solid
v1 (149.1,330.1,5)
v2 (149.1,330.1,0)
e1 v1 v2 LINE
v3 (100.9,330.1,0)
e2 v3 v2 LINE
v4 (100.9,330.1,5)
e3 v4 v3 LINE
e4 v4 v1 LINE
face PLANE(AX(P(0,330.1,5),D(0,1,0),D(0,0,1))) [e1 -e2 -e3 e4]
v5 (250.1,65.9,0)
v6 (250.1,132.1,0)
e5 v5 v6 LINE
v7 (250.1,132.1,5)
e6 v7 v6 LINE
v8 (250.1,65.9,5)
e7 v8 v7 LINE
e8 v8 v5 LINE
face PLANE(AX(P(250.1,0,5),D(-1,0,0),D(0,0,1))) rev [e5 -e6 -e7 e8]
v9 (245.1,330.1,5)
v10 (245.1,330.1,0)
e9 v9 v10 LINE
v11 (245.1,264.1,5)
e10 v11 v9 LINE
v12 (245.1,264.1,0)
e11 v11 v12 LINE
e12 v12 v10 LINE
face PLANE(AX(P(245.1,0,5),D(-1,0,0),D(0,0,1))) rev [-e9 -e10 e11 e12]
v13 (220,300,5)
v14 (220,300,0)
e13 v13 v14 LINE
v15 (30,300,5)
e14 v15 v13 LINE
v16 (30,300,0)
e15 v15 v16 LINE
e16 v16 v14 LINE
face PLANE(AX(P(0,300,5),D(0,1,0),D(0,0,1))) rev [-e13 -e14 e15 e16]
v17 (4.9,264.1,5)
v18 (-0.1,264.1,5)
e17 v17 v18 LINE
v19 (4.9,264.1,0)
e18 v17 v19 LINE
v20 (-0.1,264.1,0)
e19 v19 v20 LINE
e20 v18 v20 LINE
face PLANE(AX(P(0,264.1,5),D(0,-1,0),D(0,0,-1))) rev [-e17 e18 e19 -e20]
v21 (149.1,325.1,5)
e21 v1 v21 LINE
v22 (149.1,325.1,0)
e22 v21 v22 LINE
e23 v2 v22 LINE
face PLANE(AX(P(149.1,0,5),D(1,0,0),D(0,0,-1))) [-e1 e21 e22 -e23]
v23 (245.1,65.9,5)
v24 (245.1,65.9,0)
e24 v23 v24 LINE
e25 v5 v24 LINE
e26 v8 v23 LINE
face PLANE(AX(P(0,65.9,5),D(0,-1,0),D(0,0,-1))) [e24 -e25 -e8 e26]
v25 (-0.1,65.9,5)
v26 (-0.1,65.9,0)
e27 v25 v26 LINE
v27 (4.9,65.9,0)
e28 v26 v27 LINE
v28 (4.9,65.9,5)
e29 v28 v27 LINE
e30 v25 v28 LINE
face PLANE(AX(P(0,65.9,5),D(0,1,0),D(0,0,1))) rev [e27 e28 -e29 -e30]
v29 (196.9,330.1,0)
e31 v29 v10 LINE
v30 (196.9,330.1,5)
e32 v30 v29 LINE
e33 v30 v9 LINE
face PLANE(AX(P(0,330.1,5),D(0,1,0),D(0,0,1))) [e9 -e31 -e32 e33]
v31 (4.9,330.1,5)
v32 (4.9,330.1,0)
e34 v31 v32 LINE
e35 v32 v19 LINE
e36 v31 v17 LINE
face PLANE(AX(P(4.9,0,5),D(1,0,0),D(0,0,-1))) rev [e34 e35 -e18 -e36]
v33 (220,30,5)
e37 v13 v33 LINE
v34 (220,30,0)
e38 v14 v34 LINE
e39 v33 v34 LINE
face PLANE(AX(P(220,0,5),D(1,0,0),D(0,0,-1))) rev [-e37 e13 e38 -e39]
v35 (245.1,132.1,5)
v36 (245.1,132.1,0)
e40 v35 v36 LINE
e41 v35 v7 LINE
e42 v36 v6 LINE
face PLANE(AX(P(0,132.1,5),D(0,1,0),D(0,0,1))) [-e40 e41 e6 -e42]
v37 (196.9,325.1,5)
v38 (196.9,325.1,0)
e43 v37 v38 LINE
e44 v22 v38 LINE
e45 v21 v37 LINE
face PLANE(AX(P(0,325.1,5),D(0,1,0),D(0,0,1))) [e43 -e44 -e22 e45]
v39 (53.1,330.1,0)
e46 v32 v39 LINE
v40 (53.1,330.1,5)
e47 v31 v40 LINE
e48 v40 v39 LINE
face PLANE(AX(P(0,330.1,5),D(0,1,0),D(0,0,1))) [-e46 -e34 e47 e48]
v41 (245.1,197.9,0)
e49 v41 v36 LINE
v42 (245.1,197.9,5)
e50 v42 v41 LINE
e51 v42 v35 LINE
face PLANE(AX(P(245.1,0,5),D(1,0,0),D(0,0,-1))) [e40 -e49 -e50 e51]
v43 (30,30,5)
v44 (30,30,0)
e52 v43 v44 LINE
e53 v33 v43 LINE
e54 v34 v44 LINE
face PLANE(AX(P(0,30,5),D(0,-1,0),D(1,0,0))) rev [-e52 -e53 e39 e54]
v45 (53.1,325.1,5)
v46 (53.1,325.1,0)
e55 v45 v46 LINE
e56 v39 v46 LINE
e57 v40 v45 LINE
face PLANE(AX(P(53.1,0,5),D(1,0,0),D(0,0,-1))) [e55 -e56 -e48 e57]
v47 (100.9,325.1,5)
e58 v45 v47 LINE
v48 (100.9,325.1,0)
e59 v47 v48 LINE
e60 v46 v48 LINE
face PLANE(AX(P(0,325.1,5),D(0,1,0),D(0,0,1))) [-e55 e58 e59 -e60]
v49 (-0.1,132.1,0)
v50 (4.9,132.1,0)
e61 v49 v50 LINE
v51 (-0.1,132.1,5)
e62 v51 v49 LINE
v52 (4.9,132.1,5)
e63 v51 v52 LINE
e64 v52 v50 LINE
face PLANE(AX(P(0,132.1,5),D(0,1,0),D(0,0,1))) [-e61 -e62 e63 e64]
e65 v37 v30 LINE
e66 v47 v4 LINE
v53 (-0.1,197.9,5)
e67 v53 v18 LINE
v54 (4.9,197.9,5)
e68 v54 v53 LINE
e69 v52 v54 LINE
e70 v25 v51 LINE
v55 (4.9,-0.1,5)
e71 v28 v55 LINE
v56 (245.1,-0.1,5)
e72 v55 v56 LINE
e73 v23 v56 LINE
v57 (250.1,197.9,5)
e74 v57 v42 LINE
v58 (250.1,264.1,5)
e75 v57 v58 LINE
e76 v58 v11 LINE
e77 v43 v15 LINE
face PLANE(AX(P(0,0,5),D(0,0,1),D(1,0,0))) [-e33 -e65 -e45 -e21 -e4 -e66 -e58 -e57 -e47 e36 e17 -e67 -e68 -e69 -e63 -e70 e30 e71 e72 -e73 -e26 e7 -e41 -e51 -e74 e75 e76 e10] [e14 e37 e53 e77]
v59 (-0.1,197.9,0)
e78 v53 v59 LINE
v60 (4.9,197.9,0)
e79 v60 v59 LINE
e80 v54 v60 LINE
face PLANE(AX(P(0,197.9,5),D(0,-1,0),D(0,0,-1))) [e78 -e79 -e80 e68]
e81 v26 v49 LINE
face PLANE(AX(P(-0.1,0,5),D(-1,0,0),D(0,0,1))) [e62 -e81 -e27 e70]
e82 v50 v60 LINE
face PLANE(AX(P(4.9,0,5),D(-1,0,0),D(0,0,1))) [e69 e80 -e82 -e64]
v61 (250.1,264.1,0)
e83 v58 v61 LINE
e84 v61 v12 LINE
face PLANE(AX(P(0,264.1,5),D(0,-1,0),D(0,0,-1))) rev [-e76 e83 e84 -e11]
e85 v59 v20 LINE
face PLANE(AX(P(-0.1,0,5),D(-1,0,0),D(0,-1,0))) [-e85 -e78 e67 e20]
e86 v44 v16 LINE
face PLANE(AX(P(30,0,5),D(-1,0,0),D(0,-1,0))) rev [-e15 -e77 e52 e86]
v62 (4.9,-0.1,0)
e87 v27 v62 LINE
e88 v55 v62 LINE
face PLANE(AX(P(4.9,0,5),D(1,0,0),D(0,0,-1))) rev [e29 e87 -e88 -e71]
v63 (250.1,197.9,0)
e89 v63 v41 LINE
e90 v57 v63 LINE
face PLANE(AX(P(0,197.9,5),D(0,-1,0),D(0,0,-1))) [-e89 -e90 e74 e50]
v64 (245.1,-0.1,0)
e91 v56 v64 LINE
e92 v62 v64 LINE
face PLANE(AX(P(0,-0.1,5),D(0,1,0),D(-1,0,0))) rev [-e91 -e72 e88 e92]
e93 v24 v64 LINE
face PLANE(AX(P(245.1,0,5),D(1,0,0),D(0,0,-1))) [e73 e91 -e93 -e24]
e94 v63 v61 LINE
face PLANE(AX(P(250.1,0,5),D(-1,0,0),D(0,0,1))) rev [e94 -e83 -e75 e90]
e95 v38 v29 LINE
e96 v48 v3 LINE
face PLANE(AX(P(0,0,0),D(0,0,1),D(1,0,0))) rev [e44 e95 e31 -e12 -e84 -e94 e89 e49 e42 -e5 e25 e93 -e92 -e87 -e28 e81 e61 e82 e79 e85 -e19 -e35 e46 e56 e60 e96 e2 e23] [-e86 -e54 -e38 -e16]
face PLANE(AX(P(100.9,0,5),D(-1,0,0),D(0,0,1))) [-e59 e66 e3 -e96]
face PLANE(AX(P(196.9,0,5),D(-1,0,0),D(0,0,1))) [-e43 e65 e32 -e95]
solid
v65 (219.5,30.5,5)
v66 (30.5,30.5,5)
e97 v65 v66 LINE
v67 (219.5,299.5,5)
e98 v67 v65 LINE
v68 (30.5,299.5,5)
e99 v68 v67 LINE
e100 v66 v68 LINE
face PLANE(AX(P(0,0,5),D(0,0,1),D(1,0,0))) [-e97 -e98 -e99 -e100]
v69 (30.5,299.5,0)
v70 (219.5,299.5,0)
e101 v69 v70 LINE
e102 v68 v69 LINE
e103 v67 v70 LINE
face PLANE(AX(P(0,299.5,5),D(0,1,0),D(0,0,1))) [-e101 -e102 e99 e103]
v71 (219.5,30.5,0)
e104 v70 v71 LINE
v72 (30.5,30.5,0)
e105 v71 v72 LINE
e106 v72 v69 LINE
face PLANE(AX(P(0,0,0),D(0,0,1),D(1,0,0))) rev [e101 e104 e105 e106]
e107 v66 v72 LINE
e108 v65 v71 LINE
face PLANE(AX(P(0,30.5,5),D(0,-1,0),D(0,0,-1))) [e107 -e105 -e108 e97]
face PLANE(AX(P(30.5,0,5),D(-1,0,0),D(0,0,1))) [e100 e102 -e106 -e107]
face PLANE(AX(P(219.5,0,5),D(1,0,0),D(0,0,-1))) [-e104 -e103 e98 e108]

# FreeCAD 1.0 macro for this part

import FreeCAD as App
import Part
import Sketcher
from FreeCAD import Vector
Q = App.Units.Quantity

doc = App.newDocument("Part")
body = doc.addObject("PartDesign::Body", "Body")

# Sketch on XY plane
sketch1 = body.newObject("Sketcher::SketchObject", "Sketch")
sketch1.AttachmentSupport = (doc.getObject("XY_Plane"), [""])
sketch1.MapMode = "FlatFace"
sketch1.addGeometry([
    Part.LineSegment(Vector(30, 300, 0), Vector(30, 30, 0)),
    Part.LineSegment(Vector(30, 30, 0), Vector(220, 30, 0)),
    Part.LineSegment(Vector(220, 30, 0), Vector(220, 300, 0)),
    Part.LineSegment(Vector(220, 300, 0), Vector(30, 300, 0)),
], False)
sketch1.addConstraint([
    Sketcher.Constraint("Coincident", 0, 2, 1, 1),
    Sketcher.Constraint("Coincident", 1, 2, 2, 1),
    Sketcher.Constraint("Coincident", 2, 2, 3, 1),
    Sketcher.Constraint("Coincident", 3, 2, 0, 1),
    Sketcher.Constraint("Vertical", 0),
    Sketcher.Constraint("Horizontal", 1),
    Sketcher.Constraint("Vertical", 2),
    Sketcher.Constraint("Horizontal", 3),
    Sketcher.Constraint("DistanceX", 1, 1, 1, 2, Q("189 mm")),
    Sketcher.Constraint("DistanceY", 0, 2, 0, 1, Q("269 mm")),
    Sketcher.Constraint("DistanceX", -1, 1, 0, 2, Q("30.5 mm")),
    Sketcher.Constraint("DistanceY", -1, 1, 0, 2, Q("30.5 mm")),
])
pad1 = body.newObject("PartDesign::Pad", "Pad")
pad1.Profile = sketch1
pad1.Length = 5
body2 = doc.addObject("PartDesign::Body", "Body001")

# Sketch on XY plane
sketch2 = body2.newObject("Sketcher::SketchObject", "Sketch001")
sketch2.AttachmentSupport = (doc.getObject("XY_Plane001"), [""])
sketch2.MapMode = "FlatFace"
sketch2.addGeometry([
    Part.LineSegment(Vector(197, 330, 0), Vector(197, 325, 0)),  # 0
    Part.LineSegment(Vector(197, 325, 0), Vector(149, 325, 0)),  # 1
    Part.LineSegment(Vector(149, 325, 0), Vector(149, 330, 0)),  # 2
    Part.LineSegment(Vector(149, 330, 0), Vector(101, 330, 0)),  # 3
    Part.LineSegment(Vector(101, 330, 0), Vector(101, 325, 0)),  # 4
    Part.LineSegment(Vector(101, 325, 0), Vector(53, 325, 0)),  # 5
    Part.LineSegment(Vector(53, 325, 0), Vector(53, 330, 0)),  # 6
    Part.LineSegment(Vector(53, 330, 0), Vector(5, 330, 0)),  # 7
    Part.LineSegment(Vector(5, 330, 0), Vector(5, 264, 0)),  # 8
    Part.LineSegment(Vector(5, 264, 0), Vector(0, 264, 0)),  # 9
    Part.LineSegment(Vector(0, 264, 0), Vector(0, 198, 0)),  # 10
    Part.LineSegment(Vector(0, 198, 0), Vector(5, 198, 0)),  # 11
    Part.LineSegment(Vector(5, 198, 0), Vector(5, 132, 0)),  # 12
    Part.LineSegment(Vector(5, 132, 0), Vector(0, 132, 0)),  # 13
    Part.LineSegment(Vector(0, 132, 0), Vector(0, 66, 0)),  # 14
    Part.LineSegment(Vector(0, 66, 0), Vector(5, 66, 0)),  # 15
    Part.LineSegment(Vector(5, 66, 0), Vector(5, 0, 0)),  # 16
    Part.LineSegment(Vector(5, 0, 0), Vector(245, 0, 0)),  # 17
    Part.LineSegment(Vector(245, 0, 0), Vector(245, 66, 0)),  # 18
    Part.LineSegment(Vector(245, 66, 0), Vector(250, 66, 0)),  # 19
    Part.LineSegment(Vector(250, 66, 0), Vector(250, 132, 0)),  # 20
    Part.LineSegment(Vector(250, 132, 0), Vector(245, 132, 0)),  # 21
    Part.LineSegment(Vector(245, 132, 0), Vector(245, 198, 0)),  # 22
    Part.LineSegment(Vector(245, 198, 0), Vector(250, 198, 0)),  # 23
    Part.LineSegment(Vector(250, 198, 0), Vector(250, 264, 0)),  # 24
    Part.LineSegment(Vector(250, 264, 0), Vector(245, 264, 0)),  # 25
    Part.LineSegment(Vector(245, 264, 0), Vector(245, 330, 0)),  # 26
    Part.LineSegment(Vector(245, 330, 0), Vector(197, 330, 0)),  # 27
    Part.LineSegment(Vector(30, 30, 0), Vector(30, 300, 0)),  # 28
    Part.LineSegment(Vector(30, 300, 0), Vector(220, 300, 0)),  # 29
    Part.LineSegment(Vector(220, 300, 0), Vector(220, 30, 0)),  # 30
    Part.LineSegment(Vector(220, 30, 0), Vector(30, 30, 0)),  # 31
], False)
sketch2.addConstraint([
    Sketcher.Constraint("Coincident", 0, 2, 1, 1),
    Sketcher.Constraint("Coincident", 1, 2, 2, 1),
    Sketcher.Constraint("Coincident", 2, 2, 3, 1),
    Sketcher.Constraint("Coincident", 3, 2, 4, 1),
    Sketcher.Constraint("Coincident", 4, 2, 5, 1),
    Sketcher.Constraint("Coincident", 5, 2, 6, 1),
    Sketcher.Constraint("Coincident", 6, 2, 7, 1),
    Sketcher.Constraint("Coincident", 7, 2, 8, 1),
    Sketcher.Constraint("Coincident", 8, 2, 9, 1),
    Sketcher.Constraint("Coincident", 9, 2, 10, 1),
    Sketcher.Constraint("Coincident", 10, 2, 11, 1),
    Sketcher.Constraint("Coincident", 11, 2, 12, 1),
    Sketcher.Constraint("Coincident", 12, 2, 13, 1),
    Sketcher.Constraint("Coincident", 13, 2, 14, 1),
    Sketcher.Constraint("Coincident", 14, 2, 15, 1),
    Sketcher.Constraint("Coincident", 15, 2, 16, 1),
    Sketcher.Constraint("Coincident", 16, 2, 17, 1),
    Sketcher.Constraint("Coincident", 17, 2, 18, 1),
    Sketcher.Constraint("Coincident", 18, 2, 19, 1),
    Sketcher.Constraint("Coincident", 19, 2, 20, 1),
    Sketcher.Constraint("Coincident", 20, 2, 21, 1),
    Sketcher.Constraint("Coincident", 21, 2, 22, 1),
    Sketcher.Constraint("Coincident", 22, 2, 23, 1),
    Sketcher.Constraint("Coincident", 23, 2, 24, 1),
    Sketcher.Constraint("Coincident", 24, 2, 25, 1),
    Sketcher.Constraint("Coincident", 25, 2, 26, 1),
    Sketcher.Constraint("Coincident", 26, 2, 27, 1),
    Sketcher.Constraint("Coincident", 27, 2, 0, 1),
    Sketcher.Constraint("Coincident", 28, 2, 29, 1),
    Sketcher.Constraint("Coincident", 29, 2, 30, 1),
    Sketcher.Constraint("Coincident", 30, 2, 31, 1),
    Sketcher.Constraint("Coincident", 31, 2, 28, 1),
    Sketcher.Constraint("Vertical", 0),
    Sketcher.Constraint("Horizontal", 1),
    Sketcher.Constraint("Vertical", 2),
    Sketcher.Constraint("Horizontal", 3),
    Sketcher.Constraint("Vertical", 4),
    Sketcher.Constraint("Horizontal", 5),
    Sketcher.Constraint("Vertical", 6),
    Sketcher.Constraint("Horizontal", 7),
    Sketcher.Constraint("Vertical", 8),
    Sketcher.Constraint("Horizontal", 9),
    Sketcher.Constraint("Vertical", 10),
    Sketcher.Constraint("Horizontal", 11),
    Sketcher.Constraint("Vertical", 12),
    Sketcher.Constraint("Horizontal", 13),
    Sketcher.Constraint("Vertical", 14),
    Sketcher.Constraint("Horizontal", 15),
    Sketcher.Constraint("Vertical", 16),
    Sketcher.Constraint("Horizontal", 17),
    Sketcher.Constraint("Vertical", 18),
    Sketcher.Constraint("Horizontal", 19),
    Sketcher.Constraint("Vertical", 20),
    Sketcher.Constraint("Horizontal", 21),
    Sketcher.Constraint("Vertical", 22),
    Sketcher.Constraint("Horizontal", 23),
    Sketcher.Constraint("Vertical", 24),
    Sketcher.Constraint("Horizontal", 25),
    Sketcher.Constraint("Vertical", 26),
    Sketcher.Constraint("Horizontal", 27),
    Sketcher.Constraint("Vertical", 28),
    Sketcher.Constraint("Horizontal", 29),
    Sketcher.Constraint("Vertical", 30),
    Sketcher.Constraint("Horizontal", 31),
    Sketcher.Constraint("Horizontal", 1, 2, 4, 2),
    Sketcher.Constraint("Horizontal", 3, 2, 6, 2),
    Sketcher.Constraint("Horizontal", 15, 2, 18, 2),
    Sketcher.Constraint("Horizontal", 13, 2, 20, 2),
    Sketcher.Constraint("Horizontal", 11, 2, 22, 2),
    Sketcher.Constraint("Horizontal", 9, 2, 24, 2),
    Sketcher.Constraint("Horizontal", 7, 2, 26, 2),
    Sketcher.Constraint("Vertical", 8, 2, 11, 2),
    Sketcher.Constraint("Vertical", 10, 2, 13, 2),
    Sketcher.Constraint("Vertical", 12, 2, 15, 2),
    Sketcher.Constraint("Vertical", 18, 2, 21, 2),
    Sketcher.Constraint("Vertical", 20, 2, 23, 2),
    Sketcher.Constraint("Vertical", 22, 2, 25, 2),
    Sketcher.Constraint("Equal", 1, 5),
    Sketcher.Constraint("Equal", 3, 7),
    Sketcher.Constraint("Equal", 15, 19),
    Sketcher.Constraint("Equal", 7, 27),
    Sketcher.Constraint("Equal", 25, 0),
    Sketcher.Constraint("Equal", 10, 14),
    Sketcher.Constraint("Equal", 8, 16),
    Sketcher.Constraint("DistanceX", 9, 2, 9, 1, Q("5 mm")),
    Sketcher.Constraint("DistanceX", 29, 1, 29, 2, Q("190 mm")),
    Sketcher.Constraint("DistanceY", 8, 2, 8, 1, Q("66 mm")),
    Sketcher.Constraint("DistanceY", 28, 1, 28, 2, Q("270 mm")),
    Sketcher.Constraint("DistanceX", 1, 2, 1, 1, Q("47.8 mm")),
    Sketcher.Constraint("DistanceX", 3, 2, 3, 1, Q("48.2 mm")),
    Sketcher.Constraint("DistanceY", 10, 2, 10, 1, Q("66.2 mm")),
    Sketcher.Constraint("DistanceY", 12, 2, 12, 1, Q("65.8 mm")),
    Sketcher.Constraint("DistanceX", -1, 1, 28, 2, Q("30 mm")),
    Sketcher.Constraint("DistanceY", -1, 1, 28, 2, Q("300 mm")),
    Sketcher.Constraint("DistanceX", -1, 1, 0, 2, Q("196.9 mm")),
    Sketcher.Constraint("DistanceY", -1, 1, 0, 2, Q("325.1 mm")),
])
pad2 = body2.newObject("PartDesign::Pad", "Pad001")
pad2.Profile = sketch2
pad2.Length = 5

doc.recompute()
